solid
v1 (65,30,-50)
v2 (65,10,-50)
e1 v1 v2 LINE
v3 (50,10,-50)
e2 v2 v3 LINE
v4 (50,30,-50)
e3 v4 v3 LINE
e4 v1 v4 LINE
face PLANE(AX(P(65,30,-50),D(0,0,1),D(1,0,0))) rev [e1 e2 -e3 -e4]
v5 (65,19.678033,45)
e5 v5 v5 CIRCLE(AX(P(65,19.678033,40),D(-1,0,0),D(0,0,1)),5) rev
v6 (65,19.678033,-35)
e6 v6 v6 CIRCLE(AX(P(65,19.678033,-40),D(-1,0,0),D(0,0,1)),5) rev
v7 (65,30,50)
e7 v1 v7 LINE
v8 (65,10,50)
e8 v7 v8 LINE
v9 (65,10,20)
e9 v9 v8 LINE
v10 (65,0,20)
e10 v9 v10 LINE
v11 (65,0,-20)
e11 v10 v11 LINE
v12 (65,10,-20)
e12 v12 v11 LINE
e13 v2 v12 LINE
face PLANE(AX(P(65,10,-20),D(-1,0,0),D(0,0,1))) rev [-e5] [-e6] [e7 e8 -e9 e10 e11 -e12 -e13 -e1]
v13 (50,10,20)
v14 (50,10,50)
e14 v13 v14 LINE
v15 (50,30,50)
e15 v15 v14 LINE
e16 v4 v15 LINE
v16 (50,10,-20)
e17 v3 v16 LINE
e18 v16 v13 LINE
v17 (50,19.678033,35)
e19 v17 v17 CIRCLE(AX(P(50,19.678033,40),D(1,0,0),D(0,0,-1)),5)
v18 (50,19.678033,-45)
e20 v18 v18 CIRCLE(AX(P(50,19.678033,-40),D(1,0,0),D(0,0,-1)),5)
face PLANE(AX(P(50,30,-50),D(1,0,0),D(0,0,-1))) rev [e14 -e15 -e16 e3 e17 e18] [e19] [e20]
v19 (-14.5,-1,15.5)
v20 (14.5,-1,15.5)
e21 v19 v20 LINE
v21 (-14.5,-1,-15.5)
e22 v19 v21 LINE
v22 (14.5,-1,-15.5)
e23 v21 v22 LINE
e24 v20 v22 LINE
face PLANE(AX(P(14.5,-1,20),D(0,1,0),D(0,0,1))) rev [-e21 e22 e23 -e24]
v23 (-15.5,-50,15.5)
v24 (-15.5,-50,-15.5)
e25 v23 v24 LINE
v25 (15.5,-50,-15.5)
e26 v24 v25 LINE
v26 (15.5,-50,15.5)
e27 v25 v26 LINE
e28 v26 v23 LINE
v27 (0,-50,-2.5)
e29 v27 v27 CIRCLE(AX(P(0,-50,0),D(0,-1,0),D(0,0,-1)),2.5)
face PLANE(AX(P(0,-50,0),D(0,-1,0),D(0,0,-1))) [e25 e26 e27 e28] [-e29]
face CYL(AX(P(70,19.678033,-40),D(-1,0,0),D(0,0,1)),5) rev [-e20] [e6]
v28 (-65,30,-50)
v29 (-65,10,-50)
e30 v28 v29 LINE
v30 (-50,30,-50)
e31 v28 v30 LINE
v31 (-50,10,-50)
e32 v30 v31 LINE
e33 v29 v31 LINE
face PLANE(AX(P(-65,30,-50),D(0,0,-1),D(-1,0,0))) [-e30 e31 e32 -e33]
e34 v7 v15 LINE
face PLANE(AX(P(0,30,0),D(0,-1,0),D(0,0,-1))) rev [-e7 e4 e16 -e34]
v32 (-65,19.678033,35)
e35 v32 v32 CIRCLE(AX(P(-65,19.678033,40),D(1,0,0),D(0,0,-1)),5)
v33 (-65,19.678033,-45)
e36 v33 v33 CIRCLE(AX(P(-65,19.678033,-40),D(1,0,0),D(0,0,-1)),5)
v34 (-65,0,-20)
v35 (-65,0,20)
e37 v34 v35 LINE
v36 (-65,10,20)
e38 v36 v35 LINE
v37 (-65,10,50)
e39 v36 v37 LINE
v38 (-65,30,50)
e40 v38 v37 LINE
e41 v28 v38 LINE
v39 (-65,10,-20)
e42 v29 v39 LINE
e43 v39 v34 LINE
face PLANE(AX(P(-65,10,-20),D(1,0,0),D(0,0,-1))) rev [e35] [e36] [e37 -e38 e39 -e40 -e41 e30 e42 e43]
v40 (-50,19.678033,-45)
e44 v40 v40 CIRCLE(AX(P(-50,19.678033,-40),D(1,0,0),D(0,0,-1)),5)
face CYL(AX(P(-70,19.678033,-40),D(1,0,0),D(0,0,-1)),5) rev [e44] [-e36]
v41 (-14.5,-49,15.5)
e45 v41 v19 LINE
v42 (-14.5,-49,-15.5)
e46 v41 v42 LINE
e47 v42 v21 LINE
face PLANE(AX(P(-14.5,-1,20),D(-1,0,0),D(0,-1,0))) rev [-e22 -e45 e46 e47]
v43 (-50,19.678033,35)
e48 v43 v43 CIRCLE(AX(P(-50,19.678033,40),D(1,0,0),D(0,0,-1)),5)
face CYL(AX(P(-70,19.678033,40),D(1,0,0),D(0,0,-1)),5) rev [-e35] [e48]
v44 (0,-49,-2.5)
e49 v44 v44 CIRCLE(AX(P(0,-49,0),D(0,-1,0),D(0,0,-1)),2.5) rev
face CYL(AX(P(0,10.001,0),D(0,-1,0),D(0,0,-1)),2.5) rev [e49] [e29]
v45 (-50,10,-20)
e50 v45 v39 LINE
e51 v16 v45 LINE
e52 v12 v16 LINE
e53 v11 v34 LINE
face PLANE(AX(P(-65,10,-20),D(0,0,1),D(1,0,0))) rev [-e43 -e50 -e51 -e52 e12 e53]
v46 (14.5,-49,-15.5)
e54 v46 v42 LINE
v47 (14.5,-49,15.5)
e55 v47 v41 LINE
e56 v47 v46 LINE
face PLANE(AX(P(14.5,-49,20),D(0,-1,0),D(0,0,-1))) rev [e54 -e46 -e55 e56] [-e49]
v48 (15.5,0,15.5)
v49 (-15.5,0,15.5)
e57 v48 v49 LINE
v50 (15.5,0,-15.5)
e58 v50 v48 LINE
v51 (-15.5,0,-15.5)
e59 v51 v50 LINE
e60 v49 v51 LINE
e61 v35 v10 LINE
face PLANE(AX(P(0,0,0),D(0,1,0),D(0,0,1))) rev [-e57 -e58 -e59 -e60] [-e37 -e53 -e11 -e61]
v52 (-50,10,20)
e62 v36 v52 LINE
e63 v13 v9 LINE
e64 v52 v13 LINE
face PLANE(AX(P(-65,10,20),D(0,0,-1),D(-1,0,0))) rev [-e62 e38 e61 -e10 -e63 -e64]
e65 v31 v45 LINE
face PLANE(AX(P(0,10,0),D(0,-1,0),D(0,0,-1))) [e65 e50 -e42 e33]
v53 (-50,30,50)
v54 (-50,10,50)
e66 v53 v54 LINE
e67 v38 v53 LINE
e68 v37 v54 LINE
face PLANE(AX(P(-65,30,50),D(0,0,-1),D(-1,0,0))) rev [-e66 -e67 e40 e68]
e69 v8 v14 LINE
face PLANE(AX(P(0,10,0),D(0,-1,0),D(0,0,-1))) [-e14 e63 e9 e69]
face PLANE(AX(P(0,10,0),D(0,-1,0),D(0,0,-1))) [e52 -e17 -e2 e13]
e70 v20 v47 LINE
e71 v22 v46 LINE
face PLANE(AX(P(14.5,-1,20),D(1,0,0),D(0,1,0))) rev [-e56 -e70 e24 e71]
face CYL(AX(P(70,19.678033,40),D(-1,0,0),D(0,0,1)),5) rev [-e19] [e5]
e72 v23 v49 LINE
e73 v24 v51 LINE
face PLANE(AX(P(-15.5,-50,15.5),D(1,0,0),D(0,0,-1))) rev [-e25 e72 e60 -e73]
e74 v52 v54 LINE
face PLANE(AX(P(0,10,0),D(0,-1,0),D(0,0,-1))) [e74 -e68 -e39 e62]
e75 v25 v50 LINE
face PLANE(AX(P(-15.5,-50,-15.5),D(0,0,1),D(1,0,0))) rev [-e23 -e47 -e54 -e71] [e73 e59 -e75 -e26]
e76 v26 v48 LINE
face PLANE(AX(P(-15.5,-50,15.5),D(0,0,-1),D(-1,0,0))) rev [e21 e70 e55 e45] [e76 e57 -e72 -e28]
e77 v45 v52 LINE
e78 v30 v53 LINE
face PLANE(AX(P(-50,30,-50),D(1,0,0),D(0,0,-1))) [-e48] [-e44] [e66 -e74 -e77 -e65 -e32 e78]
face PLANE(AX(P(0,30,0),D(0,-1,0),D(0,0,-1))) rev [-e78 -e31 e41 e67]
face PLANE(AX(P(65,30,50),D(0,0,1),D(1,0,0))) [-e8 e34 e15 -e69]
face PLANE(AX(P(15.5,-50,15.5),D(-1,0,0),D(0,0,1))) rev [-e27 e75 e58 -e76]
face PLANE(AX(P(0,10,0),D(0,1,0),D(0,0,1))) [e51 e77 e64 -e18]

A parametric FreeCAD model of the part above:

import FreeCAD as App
import Part
import Sketcher

V = App.Vector

doc = App.newDocument("Part")
body = doc.addObject("PartDesign::Body", "Body")

# Sketch on XZ plane
sketch1 = body.newObject("Sketcher::SketchObject", "Sketch")
sketch1.AttachmentSupport = (doc.getObject("XZ_Plane"), [""])
sketch1.MapMode = "FlatFace"
sketch1.addGeometry(Part.LineSegment(V(-65, -20, 0), V(-65, 20, 0)), False)
sketch1.addGeometry(Part.LineSegment(V(-65, 20, 0), V(65, 20, 0)), False)
sketch1.addGeometry(Part.LineSegment(V(65, 20, 0), V(65, -20, 0)), False)
sketch1.addGeometry(Part.LineSegment(V(65, -20, 0), V(-65, -20, 0)), False)
sketch1.addConstraint(Sketcher.Constraint("Coincident", 0, 2, 1, 1))
sketch1.addConstraint(Sketcher.Constraint("Coincident", 1, 2, 2, 1))
sketch1.addConstraint(Sketcher.Constraint("Coincident", 2, 2, 3, 1))
sketch1.addConstraint(Sketcher.Constraint("Coincident", 3, 2, 0, 1))
sketch1.addConstraint(Sketcher.Constraint("Vertical", 0))
sketch1.addConstraint(Sketcher.Constraint("Horizontal", 1))
sketch1.addConstraint(Sketcher.Constraint("Vertical", 2))
sketch1.addConstraint(Sketcher.Constraint("Horizontal", 3))
sketch1.addConstraint(Sketcher.Constraint("Symmetric", 0, 2, 2, 2, -1, 1))
sketch1.addConstraint(Sketcher.Constraint("DistanceX", 1, 1, 1, 2, 130.0))
sketch1.addConstraint(Sketcher.Constraint("DistanceY", 0, 1, 0, 2, 40.0))
pad1 = body.newObject("PartDesign::Pad", "Pad")
pad1.Profile = sketch1
pad1.Length = 10
pad1.Reversed = True

# Sketch on XZ plane
sketch2 = body.newObject("Sketcher::SketchObject", "Sketch001")
sketch2.AttachmentSupport = (doc.getObject("XZ_Plane"), [""])
sketch2.MapMode = "FlatFace"
sketch2.addGeometry(Part.LineSegment(V(-15.5, 15.5, 0), V(-15.5, -15.5, 0)), False)
sketch2.addGeometry(Part.LineSegment(V(-15.5, -15.5, 0), V(15.5, -15.5, 0)), False)
sketch2.addGeometry(Part.LineSegment(V(15.5, -15.5, 0), V(15.5, 15.5, 0)), False)
sketch2.addGeometry(Part.LineSegment(V(15.5, 15.5, 0), V(-15.5, 15.5, 0)), False)
sketch2.addConstraint(Sketcher.Constraint("Coincident", 0, 2, 1, 1))
sketch2.addConstraint(Sketcher.Constraint("Coincident", 1, 2, 2, 1))
sketch2.addConstraint(Sketcher.Constraint("Coincident", 2, 2, 3, 1))
sketch2.addConstraint(Sketcher.Constraint("Coincident", 3, 2, 0, 1))
sketch2.addConstraint(Sketcher.Constraint("Vertical", 0))
sketch2.addConstraint(Sketcher.Constraint("Horizontal", 1))
sketch2.addConstraint(Sketcher.Constraint("Vertical", 2))
sketch2.addConstraint(Sketcher.Constraint("Horizontal", 3))
sketch2.addConstraint(Sketcher.Constraint("Symmetric", 0, 2, 2, 2, -1, 1))
sketch2.addConstraint(Sketcher.Constraint("Equal", 3, 0))
sketch2.addConstraint(Sketcher.Constraint("DistanceX", 1, 1, 1, 2, 31.0))
pad2 = body.newObject("PartDesign::Pad", "Pad001")
pad2.Profile = sketch2
pad2.Length = 50

# Sketch on XY plane
sketch3 = body.newObject("Sketcher::SketchObject", "Sketch002")
sketch3.AttachmentSupport = (doc.getObject("XY_Plane"), [""])
sketch3.MapMode = "FlatFace"
sketch3.AttachmentOffset = App.Placement(V(0, 0, -15.5), App.Rotation())
sketch3.addGeometry(Part.LineSegment(V(14.5, -1, 0), V(14.5, -49, 0)), False)
sketch3.addGeometry(Part.LineSegment(V(14.5, -49, 0), V(-14.5, -49, 0)), False)
sketch3.addGeometry(Part.LineSegment(V(-14.5, -49, 0), V(-14.5, -1, 0)), False)
sketch3.addGeometry(Part.LineSegment(V(-14.5, -1, 0), V(14.5, -1, 0)), False)
sketch3.addConstraint(Sketcher.Constraint("Coincident", 0, 2, 1, 1))
sketch3.addConstraint(Sketcher.Constraint("Coincident", 1, 2, 2, 1))
sketch3.addConstraint(Sketcher.Constraint("Coincident", 2, 2, 3, 1))
sketch3.addConstraint(Sketcher.Constraint("Coincident", 3, 2, 0, 1))
sketch3.addConstraint(Sketcher.Constraint("Vertical", 0))
sketch3.addConstraint(Sketcher.Constraint("Horizontal", 1))
sketch3.addConstraint(Sketcher.Constraint("Vertical", 2))
sketch3.addConstraint(Sketcher.Constraint("Horizontal", 3))
sketch3.addConstraint(Sketcher.Constraint("DistanceX", 1, 2, 1, 1, 29.0))
sketch3.addConstraint(Sketcher.Constraint("DistanceY", 0, 2, 0, 1, 48.0))
sketch3.addConstraint(Sketcher.Constraint("DistanceY", 0, 2, -1, 1, 49.0))
sketch3.addConstraint(Sketcher.Constraint("DistanceX", -1, 1, 0, 2, 14.5))
pocket1 = body.newObject("PartDesign::Pocket", "Pocket")
pocket1.Profile = sketch3
pocket1.Type = "ThroughAll"
pocket1.Reversed = True

# Sketch on XZ plane
sketch4 = body.newObject("Sketcher::SketchObject", "Sketch003")
sketch4.AttachmentSupport = (doc.getObject("XZ_Plane"), [""])
sketch4.MapMode = "FlatFace"
sketch4.AttachmentOffset = App.Placement(V(0, 0, 50), App.Rotation())
sketch4.addGeometry(Part.Circle(V(0, 0, 0), V(0, 0, 1), 2.5), False)
sketch4.addConstraint(Sketcher.Constraint("Coincident", 0, 3, -1, 1))
sketch4.addConstraint(Sketcher.Constraint("Diameter", 0, 5.0))
pocket2 = body.newObject("PartDesign::Pocket", "Pocket001")
pocket2.Profile = sketch4
pocket2.Type = "UpToFirst"

# Sketch on XZ plane
sketch5 = body.newObject("Sketcher::SketchObject", "Sketch004")
sketch5.AttachmentSupport = (doc.getObject("XZ_Plane"), [""])
sketch5.MapMode = "FlatFace"
sketch5.AttachmentOffset = App.Placement(V(0, 0, -10), App.Rotation())
sketch5.addGeometry(Part.LineSegment(V(-65, -50, 0), V(-65, 50, 0)), False)
sketch5.addGeometry(Part.LineSegment(V(-65, 50, 0), V(-50, 50, 0)), False)
sketch5.addGeometry(Part.LineSegment(V(-50, 50, 0), V(-50, -50, 0)), False)
sketch5.addGeometry(Part.LineSegment(V(-50, -50, 0), V(-65, -50, 0)), False)
sketch5.addConstraint(Sketcher.Constraint("Coincident", 0, 2, 1, 1))
sketch5.addConstraint(Sketcher.Constraint("Coincident", 1, 2, 2, 1))
sketch5.addConstraint(Sketcher.Constraint("Coincident", 2, 2, 3, 1))
sketch5.addConstraint(Sketcher.Constraint("Coincident", 3, 2, 0, 1))
sketch5.addConstraint(Sketcher.Constraint("Vertical", 0))
sketch5.addConstraint(Sketcher.Constraint("Horizontal", 1))
sketch5.addConstraint(Sketcher.Constraint("Vertical", 2))
sketch5.addConstraint(Sketcher.Constraint("Horizontal", 3))
sketch5.addConstraint(Sketcher.Constraint("DistanceX", 1, 1, 1, 2, 15.0))
sketch5.addConstraint(Sketcher.Constraint("DistanceY", 0, 1, 0, 2, 100.0))
sketch5.addConstraint(Sketcher.Constraint("DistanceX", 0, 2, -1, 1, 65.0))
sketch5.addConstraint(Sketcher.Constraint("DistanceY", -1, 1, 0, 2, 50.0))
pad3 = body.newObject("PartDesign::Pad", "Pad002")
pad3.Profile = sketch5
pad3.Length = 20
pad3.Reversed = True

# Sketch on YZ plane
sketch6 = body.newObject("Sketcher::SketchObject", "Sketch005")
sketch6.AttachmentSupport = (doc.getObject("YZ_Plane"), [""])
sketch6.MapMode = "FlatFace"
sketch6.AttachmentOffset = App.Placement(V(0, 0, -50), App.Rotation())
sketch6.addGeometry(Part.Circle(V(19.678033, 40, 0), V(0, 0, 1), 5), False)
sketch6.addGeometry(Part.Circle(V(19.678033, -40, 0), V(0, 0, 1), 5), False)
sketch6.addConstraint(Sketcher.Constraint("Equal", 0, 1))
sketch6.addConstraint(Sketcher.Constraint("Symmetric", 0, 3, 1, 3, -1))
sketch6.addConstraint(Sketcher.Constraint("Diameter", 0, 10.0))
sketch6.addConstraint(Sketcher.Constraint("DistanceY", -1, 1, 0, 3, 40.0))
sketch6.addConstraint(Sketcher.Constraint("DistanceX", -1, 1, 0, 3, 19.678033))
pocket3 = body.newObject("PartDesign::Pocket", "Pocket002")
pocket3.Profile = sketch6
pocket3.Length = 20
doc.recompute()

mirrored = body.newObject("PartDesign::Mirrored", "Mirrored")
mirrored.Originals = [pad3, pocket3]
mirrored.MirrorPlane = (doc.getObject("YZ_Plane"), [""])
body.Tip = mirrored

doc.recompute()
